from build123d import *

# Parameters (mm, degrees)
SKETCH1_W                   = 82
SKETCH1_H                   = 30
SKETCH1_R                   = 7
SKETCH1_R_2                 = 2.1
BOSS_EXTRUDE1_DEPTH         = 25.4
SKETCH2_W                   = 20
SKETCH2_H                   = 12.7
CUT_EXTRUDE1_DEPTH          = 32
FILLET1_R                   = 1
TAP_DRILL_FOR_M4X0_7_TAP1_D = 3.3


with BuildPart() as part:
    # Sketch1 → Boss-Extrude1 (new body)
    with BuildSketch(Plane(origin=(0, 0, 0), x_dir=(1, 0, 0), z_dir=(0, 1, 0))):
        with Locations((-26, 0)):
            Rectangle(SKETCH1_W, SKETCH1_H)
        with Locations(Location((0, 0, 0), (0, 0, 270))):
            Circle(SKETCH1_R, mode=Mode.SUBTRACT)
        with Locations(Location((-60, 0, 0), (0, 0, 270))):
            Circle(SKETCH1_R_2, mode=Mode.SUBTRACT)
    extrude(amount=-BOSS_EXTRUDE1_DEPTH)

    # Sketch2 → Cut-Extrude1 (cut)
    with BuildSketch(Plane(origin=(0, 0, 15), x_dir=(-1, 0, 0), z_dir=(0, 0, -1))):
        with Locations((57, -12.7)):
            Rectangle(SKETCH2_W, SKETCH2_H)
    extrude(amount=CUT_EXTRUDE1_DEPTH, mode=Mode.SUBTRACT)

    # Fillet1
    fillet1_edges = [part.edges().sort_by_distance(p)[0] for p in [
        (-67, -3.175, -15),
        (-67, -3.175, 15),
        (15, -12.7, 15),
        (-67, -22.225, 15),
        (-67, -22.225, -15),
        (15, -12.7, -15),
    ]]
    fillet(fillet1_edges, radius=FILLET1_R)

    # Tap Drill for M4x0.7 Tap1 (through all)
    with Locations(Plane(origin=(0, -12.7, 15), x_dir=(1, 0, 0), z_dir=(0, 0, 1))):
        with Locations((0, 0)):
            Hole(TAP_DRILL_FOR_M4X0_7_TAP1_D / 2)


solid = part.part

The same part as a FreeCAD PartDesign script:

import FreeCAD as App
import Part
import Sketcher


def edges_at(feature, points):
    """Names of the edges that pass closest to the given points."""
    edges = feature.Shape.Edges
    near = lambda p: min(range(len(edges)), key=lambda i: edges[i].distToShape(Part.Vertex(*p))[0])
    return sorted({f"Edge{near(p) + 1}" for p in points})


def add_polygon(sketch, points):
    """Adds a closed chain of lines whose ends are joined by coincident constraints."""
    first, n = sketch.GeometryCount, len(points)
    for a, b in zip(points, points[1:] + points[:1]):
        sketch.addGeometry(Part.LineSegment(App.Vector(*a, 0), App.Vector(*b, 0)), False)
    for i in range(n):
        sketch.addConstraint(Sketcher.Constraint("Coincident", first + i, 2, first + (i + 1) % n, 1))

doc = App.newDocument("Part")
body = doc.addObject("PartDesign::Body", "Body")

# Sketch on XZ plane
sketch1 = body.newObject("Sketcher::SketchObject", "Sketch")
sketch1.AttachmentSupport = (doc.getObject("XZ_Plane"), [""])
sketch1.MapMode = "FlatFace"
add_polygon(sketch1, [(-67, -15), (-67, 15), (15, 15), (15, -15)])  # lines 0-3
sketch1.addGeometry(Part.Circle(App.Vector(-60, 0, 0), App.Vector(0, 0, 1), 2.1), False)  # 4
sketch1.addGeometry(Part.Circle(App.Vector(0, 0, 0), App.Vector(0, 0, 1), 7), False)  # 5
sketch1.addConstraint([
    Sketcher.Constraint("Vertical", 0),
    Sketcher.Constraint("Horizontal", 1),
    Sketcher.Constraint("Vertical", 2),
    Sketcher.Constraint("Horizontal", 3),
    Sketcher.Constraint("Coincident", 5, 3, -1, 1),
    Sketcher.Constraint("PointOnObject", 4, 3, -1),
    Sketcher.Constraint("Diameter", 5, 14.0),
    Sketcher.Constraint("Diameter", 4, 4.2),
    Sketcher.Constraint("DistanceX", 1, 1, 1, 2, 82.0),
    Sketcher.Constraint("DistanceY", 0, 1, 0, 2, 30.0),
    Sketcher.Constraint("DistanceX", 4, 3, -1, 1, 60.0),
    Sketcher.Constraint("DistanceX", 0, 2, -1, 1, 67.0),
    Sketcher.Constraint("DistanceY", -1, 1, 0, 2, 15.0),
])
pad1 = body.newObject("PartDesign::Pad", "Pad")
pad1.Profile = sketch1
pad1.Length = 25.4

# Sketch on XY plane
sketch2 = body.newObject("Sketcher::SketchObject", "Sketch001")
sketch2.AttachmentSupport = (doc.getObject("XY_Plane"), [""])
sketch2.MapMode = "FlatFace"
sketch2.AttachmentOffset = App.Placement(App.Vector(0, 0, 15), App.Rotation())
add_polygon(sketch2, [(-47, -6), (-47, -19), (-67, -19), (-67, -6)])  # lines 0-3
sketch2.addConstraint([
    Sketcher.Constraint("Vertical", 0),
    Sketcher.Constraint("Horizontal", 1),
    Sketcher.Constraint("Vertical", 2),
    Sketcher.Constraint("Horizontal", 3),
    Sketcher.Constraint("DistanceX", 1, 2, 1, 1, 20.0),
    Sketcher.Constraint("DistanceY", 0, 2, 0, 1, 12.7),
    Sketcher.Constraint("DistanceX", 0, 2, -1, 1, 47.0),
    Sketcher.Constraint("DistanceY", 0, 2, -1, 1, 19.05),
])
pocket1 = body.newObject("PartDesign::Pocket", "Pocket")
pocket1.Profile = sketch2
pocket1.Length = 32
doc.recompute()

fillet = body.newObject("PartDesign::Fillet", "Fillet")
fillet.Base = (pocket1, edges_at(pocket1, [
    (-67, -3.175, -15),
    (-67, -3.175, 15),
    (15, -12.7, 15),
    (-67, -22.225, 15),
    (-67, -22.225, -15),
    (15, -12.7, -15),
]))
fillet.Radius = 1

# Sketch on XY plane
sketch3 = body.newObject("Sketcher::SketchObject", "Sketch002")
sketch3.AttachmentSupport = (doc.getObject("XY_Plane"), [""])
sketch3.MapMode = "FlatFace"
sketch3.AttachmentOffset = App.Placement(App.Vector(0, 0, 15), App.Rotation())
sketch3.addGeometry(Part.Circle(App.Vector(0, -12.7, 0), App.Vector(0, 0, 1), 1.6), False)
sketch3.addConstraint([
    Sketcher.Constraint("PointOnObject", 0, 3, -2),
    Sketcher.Constraint("Diameter", 0, 3.3),
    Sketcher.Constraint("DistanceY", 0, 3, -1, 1, 12.7),
])
doc.recompute()
hole = body.newObject("PartDesign::Hole", "Hole")
hole.Profile = sketch3
hole.ThreadType = "None"
hole.Diameter = 3.3
hole.DepthType = "ThroughAll"

doc.recompute()
